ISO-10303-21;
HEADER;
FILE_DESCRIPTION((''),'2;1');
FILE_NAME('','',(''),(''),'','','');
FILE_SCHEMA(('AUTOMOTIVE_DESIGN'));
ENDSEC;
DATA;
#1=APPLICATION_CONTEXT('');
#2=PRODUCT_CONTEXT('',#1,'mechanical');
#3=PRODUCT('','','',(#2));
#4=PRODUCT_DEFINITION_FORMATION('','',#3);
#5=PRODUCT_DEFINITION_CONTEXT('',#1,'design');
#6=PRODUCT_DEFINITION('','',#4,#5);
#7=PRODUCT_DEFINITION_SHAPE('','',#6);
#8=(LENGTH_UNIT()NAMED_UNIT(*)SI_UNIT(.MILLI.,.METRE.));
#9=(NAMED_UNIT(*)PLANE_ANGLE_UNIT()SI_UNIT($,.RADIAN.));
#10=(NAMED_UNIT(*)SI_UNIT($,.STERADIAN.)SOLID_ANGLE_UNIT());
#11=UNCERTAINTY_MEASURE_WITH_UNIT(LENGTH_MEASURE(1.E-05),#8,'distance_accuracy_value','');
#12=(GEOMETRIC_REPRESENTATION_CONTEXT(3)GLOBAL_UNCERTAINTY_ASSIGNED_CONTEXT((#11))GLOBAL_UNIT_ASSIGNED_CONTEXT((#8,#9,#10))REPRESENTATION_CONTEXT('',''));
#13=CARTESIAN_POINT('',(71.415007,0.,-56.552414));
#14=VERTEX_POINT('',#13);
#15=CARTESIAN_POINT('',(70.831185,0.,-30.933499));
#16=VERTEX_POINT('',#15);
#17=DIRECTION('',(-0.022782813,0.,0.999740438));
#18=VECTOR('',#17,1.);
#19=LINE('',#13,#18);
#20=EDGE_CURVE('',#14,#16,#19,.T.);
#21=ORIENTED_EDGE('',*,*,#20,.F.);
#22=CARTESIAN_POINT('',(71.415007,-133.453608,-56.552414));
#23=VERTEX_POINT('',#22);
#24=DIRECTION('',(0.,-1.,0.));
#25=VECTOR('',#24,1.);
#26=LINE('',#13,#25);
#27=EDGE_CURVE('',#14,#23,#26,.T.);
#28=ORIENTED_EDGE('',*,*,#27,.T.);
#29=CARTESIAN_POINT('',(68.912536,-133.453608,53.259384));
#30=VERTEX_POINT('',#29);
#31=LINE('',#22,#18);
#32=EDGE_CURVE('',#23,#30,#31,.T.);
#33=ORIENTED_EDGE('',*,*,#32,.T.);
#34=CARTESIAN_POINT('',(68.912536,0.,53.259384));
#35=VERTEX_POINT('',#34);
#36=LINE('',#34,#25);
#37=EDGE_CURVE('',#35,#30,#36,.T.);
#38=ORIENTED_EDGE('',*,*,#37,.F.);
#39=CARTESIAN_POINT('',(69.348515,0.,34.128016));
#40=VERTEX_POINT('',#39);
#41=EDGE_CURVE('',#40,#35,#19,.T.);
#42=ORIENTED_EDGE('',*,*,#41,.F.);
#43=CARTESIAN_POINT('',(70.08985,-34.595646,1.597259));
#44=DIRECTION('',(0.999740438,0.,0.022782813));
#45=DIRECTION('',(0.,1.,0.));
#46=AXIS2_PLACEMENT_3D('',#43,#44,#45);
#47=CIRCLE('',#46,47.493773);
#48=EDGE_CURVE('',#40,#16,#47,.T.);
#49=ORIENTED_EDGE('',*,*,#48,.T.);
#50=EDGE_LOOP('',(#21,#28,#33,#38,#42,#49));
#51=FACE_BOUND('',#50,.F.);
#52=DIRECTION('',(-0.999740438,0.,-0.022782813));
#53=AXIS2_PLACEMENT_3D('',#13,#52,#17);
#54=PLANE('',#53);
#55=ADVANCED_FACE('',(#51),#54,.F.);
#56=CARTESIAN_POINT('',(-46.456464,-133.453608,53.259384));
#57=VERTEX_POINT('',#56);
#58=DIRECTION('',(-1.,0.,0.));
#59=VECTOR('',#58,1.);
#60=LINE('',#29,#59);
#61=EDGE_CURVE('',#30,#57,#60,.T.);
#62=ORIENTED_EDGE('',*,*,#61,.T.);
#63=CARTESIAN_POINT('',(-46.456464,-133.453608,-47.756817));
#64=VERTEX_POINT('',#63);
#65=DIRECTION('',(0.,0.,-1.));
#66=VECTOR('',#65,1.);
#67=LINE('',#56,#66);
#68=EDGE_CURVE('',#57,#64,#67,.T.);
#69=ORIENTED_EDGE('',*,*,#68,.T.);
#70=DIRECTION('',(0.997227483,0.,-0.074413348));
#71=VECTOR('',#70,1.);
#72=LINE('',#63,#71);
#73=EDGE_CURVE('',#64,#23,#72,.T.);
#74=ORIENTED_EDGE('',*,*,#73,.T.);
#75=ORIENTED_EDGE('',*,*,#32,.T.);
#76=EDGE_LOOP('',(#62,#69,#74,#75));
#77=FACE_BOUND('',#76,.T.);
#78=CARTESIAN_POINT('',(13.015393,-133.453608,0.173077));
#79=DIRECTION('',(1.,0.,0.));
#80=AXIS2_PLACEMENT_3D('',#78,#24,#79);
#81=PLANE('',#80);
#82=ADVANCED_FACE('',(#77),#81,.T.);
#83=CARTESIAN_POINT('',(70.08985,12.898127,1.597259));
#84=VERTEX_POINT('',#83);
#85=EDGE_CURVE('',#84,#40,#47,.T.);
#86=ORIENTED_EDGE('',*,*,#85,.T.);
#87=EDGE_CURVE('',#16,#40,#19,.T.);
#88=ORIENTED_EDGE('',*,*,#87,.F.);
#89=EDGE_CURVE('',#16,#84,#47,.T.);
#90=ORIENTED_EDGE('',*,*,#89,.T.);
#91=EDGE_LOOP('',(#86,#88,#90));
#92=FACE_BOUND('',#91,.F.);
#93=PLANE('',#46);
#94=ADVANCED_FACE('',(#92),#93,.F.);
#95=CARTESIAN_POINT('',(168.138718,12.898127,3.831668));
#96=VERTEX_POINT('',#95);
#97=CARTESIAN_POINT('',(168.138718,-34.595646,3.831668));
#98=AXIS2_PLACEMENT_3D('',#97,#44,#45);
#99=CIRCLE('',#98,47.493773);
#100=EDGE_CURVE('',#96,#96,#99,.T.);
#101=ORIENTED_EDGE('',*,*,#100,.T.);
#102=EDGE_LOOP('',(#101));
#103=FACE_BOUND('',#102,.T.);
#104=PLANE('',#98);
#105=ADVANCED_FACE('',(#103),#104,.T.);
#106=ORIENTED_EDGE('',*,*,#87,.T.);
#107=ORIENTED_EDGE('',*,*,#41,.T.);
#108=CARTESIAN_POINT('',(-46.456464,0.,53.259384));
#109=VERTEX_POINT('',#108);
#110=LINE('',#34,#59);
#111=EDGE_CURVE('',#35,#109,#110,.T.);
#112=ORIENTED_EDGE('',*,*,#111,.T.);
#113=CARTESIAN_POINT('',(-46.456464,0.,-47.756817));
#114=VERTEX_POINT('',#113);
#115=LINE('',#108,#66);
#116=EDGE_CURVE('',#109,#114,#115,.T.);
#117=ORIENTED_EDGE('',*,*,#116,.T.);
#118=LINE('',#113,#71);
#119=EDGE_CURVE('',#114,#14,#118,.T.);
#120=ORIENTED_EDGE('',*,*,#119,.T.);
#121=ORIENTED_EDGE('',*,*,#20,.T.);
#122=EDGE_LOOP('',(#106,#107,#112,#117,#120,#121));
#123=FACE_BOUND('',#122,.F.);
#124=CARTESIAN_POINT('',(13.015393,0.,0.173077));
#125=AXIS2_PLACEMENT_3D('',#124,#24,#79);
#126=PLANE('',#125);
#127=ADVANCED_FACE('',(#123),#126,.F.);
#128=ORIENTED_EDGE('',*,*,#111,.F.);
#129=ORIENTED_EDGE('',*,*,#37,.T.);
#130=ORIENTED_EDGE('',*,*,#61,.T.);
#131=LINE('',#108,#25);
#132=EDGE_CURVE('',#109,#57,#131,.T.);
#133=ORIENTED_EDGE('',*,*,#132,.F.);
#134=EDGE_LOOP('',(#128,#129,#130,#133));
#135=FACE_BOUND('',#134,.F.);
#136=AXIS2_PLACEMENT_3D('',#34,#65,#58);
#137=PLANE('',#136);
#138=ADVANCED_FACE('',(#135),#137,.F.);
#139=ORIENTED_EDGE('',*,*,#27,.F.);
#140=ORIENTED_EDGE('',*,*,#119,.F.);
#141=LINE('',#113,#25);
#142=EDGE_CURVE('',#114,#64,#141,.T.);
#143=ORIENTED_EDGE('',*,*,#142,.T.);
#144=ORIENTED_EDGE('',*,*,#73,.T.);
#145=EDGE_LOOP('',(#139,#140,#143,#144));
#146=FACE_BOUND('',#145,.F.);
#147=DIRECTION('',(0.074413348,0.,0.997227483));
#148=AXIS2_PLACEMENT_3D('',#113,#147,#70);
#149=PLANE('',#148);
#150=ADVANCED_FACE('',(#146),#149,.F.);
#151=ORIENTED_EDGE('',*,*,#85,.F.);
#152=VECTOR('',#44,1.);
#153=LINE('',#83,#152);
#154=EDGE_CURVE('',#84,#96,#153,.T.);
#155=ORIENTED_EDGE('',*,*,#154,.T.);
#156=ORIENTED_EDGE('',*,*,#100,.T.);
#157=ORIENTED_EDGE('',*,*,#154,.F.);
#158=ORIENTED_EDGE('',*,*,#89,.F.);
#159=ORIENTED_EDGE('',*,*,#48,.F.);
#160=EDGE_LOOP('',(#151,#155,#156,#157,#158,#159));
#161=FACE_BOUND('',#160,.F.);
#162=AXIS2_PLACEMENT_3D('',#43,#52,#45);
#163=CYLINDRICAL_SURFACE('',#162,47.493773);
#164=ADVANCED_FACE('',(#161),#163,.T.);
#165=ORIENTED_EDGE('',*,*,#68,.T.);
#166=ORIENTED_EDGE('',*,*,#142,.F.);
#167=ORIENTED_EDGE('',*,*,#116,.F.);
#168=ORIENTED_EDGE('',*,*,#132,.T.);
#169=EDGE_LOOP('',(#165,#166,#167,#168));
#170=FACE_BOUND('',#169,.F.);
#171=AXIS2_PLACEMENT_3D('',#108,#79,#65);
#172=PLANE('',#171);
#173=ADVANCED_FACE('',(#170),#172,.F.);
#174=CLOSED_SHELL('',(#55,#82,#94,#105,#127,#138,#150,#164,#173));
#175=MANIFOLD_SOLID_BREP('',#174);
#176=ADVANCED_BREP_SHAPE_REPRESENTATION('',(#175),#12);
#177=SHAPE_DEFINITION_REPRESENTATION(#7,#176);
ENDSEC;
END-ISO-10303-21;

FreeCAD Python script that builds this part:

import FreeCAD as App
import Part
import Sketcher
Q = App.Units.Quantity

doc = App.newDocument("Part")
body = doc.addObject("PartDesign::Body", "Body")

sketch1 = doc.addObject("Sketcher::SketchObject", "Sketch")
body.addObject(sketch1)
sketch1.AttachmentSupport = (doc.XZ_Plane, [""])
sketch1.MapMode = "FlatFace"
sketch1.addGeometry([
    Part.LineSegment(App.Vector(71.415007, -56.552414, 0), App.Vector(68.912536, 53.259384, 0)),
    Part.LineSegment(App.Vector(68.912536, 53.259384, 0), App.Vector(-46.456464, 53.259384, 0)),
    Part.LineSegment(App.Vector(-46.456464, 53.259384, 0), App.Vector(-46.456464, -47.756817, 0)),
    Part.LineSegment(App.Vector(-46.456464, -47.756817, 0), App.Vector(71.415007, -56.552414, 0)),
], False)
sketch1.addConstraint([
    Sketcher.Constraint("Coincident", 0, 2, 1, 1),
    Sketcher.Constraint("Coincident", 1, 2, 2, 1),
    Sketcher.Constraint("Coincident", 2, 2, 3, 1),
    Sketcher.Constraint("Coincident", 3, 2, 0, 1),
    Sketcher.Constraint("Horizontal", 1),
    Sketcher.Constraint("Vertical", 2),
    Sketcher.Constraint("DistanceX", 1, 2, 1, 1, Q("115.369 mm")),
    Sketcher.Constraint("DistanceY", 2, 2, 2, 1, Q("101.016201 mm")),
    Sketcher.Constraint("Distance", 0, Q("109.840308 mm")),
    Sketcher.Constraint("Distance", 3, Q("118.19918 mm")),
    Sketcher.Constraint("DistanceX", -1, 1, 0, 2, Q("68.912536 mm")),
    Sketcher.Constraint("DistanceY", -1, 1, 0, 2, Q("53.259384 mm")),
])
pad1 = doc.addObject("PartDesign::Pad", "Pad")
body.addObject(pad1)
pad1.Profile = sketch1
pad1.Length = 133.453608

sketch2 = doc.addObject("Sketcher::SketchObject", "Sketch001")
body.addObject(sketch2)
sketch2.Placement = App.Placement(App.Vector(70.08985, 0, 1.597259), App.Rotation(App.Vector(0, 1, 0), App.Vector(-0.022782813, 0, 0.999740438), App.Vector(0.999740438, 0, 0.022782813), "ZXY"))
sketch2.addGeometry(Part.Circle(App.Vector(-34.595646, 0, 0), App.Vector(0, 0, 1), 47.493773), False)
sketch2.addConstraint([
    Sketcher.Constraint("PointOnObject", 0, 3, -1),
    Sketcher.Constraint("Diameter", 0, Q("94.987546 mm")),
    Sketcher.Constraint("DistanceX", 0, 3, -1, 1, Q("34.595646 mm")),
])
pad2 = doc.addObject("PartDesign::Pad", "Pad001")
body.addObject(pad2)
pad2.Profile = sketch2
pad2.Length = 98.074324

doc.recompute()
